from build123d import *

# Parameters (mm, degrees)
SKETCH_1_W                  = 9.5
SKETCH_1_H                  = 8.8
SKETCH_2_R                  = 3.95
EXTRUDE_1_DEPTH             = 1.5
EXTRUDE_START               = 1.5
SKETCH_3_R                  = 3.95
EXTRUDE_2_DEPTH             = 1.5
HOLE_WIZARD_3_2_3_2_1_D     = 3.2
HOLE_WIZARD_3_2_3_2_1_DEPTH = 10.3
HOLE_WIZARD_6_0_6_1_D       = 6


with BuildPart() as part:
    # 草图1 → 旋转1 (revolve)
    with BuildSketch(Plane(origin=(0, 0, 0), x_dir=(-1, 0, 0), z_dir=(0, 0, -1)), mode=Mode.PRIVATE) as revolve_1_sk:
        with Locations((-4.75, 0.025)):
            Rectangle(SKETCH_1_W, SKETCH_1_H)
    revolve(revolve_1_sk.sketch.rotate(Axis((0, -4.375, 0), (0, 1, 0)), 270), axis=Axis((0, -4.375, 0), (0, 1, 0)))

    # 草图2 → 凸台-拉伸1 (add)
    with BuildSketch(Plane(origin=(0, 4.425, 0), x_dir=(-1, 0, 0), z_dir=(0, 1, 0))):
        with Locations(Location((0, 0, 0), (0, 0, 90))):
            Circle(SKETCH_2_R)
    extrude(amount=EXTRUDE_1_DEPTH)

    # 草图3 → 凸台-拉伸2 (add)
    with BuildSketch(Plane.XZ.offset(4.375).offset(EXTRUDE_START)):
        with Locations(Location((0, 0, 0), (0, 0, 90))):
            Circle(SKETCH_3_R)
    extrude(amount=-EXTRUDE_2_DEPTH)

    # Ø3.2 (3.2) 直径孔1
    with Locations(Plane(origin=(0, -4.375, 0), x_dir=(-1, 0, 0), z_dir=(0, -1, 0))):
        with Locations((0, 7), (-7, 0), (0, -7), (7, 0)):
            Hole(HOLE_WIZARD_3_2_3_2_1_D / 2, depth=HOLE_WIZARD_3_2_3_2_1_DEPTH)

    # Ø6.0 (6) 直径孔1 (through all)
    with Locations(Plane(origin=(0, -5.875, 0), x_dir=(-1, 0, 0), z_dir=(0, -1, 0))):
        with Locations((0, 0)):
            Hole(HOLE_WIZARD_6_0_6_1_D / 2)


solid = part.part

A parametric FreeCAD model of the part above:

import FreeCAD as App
import Part
import Sketcher
from FreeCAD import Vector
Q = App.Units.Quantity


def add_polygon(sketch, points):
    """Adds a closed chain of lines whose ends are joined by coincident constraints."""
    first, n = sketch.GeometryCount, len(points)
    for a, b in zip(points, points[1:] + points[:1]):
        sketch.addGeometry(Part.LineSegment(App.Vector(*a, 0), App.Vector(*b, 0)), False)
    for i in range(n):
        sketch.addConstraint(Sketcher.Constraint("Coincident", first + i, 2, first + (i + 1) % n, 1))

doc = App.newDocument("Part")
body = doc.addObject("PartDesign::Body", "Body")

# Sketch on XY plane
sketch1 = doc.addObject("Sketcher::SketchObject", "Sketch")
body.addObject(sketch1)
sketch1.AttachmentSupport = (doc.XY_Plane, [""])
sketch1.MapMode = "FlatFace"
add_polygon(sketch1, [(9.5, 4.425), (9.5, -4.375), (0, -4.375), (0, 4.425)])  # lines 0-3
sketch1.addConstraint(Sketcher.Constraint("Vertical", 0))
sketch1.addConstraint(Sketcher.Constraint("Horizontal", 1))
sketch1.addConstraint(Sketcher.Constraint("Vertical", 2))
sketch1.addConstraint(Sketcher.Constraint("Horizontal", 3))
sketch1.addConstraint(Sketcher.Constraint("PointOnObject", 1, 2, -2))
sketch1.addConstraint(Sketcher.Constraint("DistanceX", 1, 2, 1, 1, Q("9.5 mm")))
sketch1.addConstraint(Sketcher.Constraint("DistanceY", 0, 2, 0, 1, Q("8.8 mm")))
sketch1.addConstraint(Sketcher.Constraint("DistanceY", 0, 2, -1, 1, Q("4.375 mm")))
revolution = doc.addObject("PartDesign::Revolution", "Revolution")
body.addObject(revolution)
revolution.Profile = sketch1
revolution.ReferenceAxis = (sketch1, ["V_Axis"])
revolution.Angle = 360

# Sketch on XZ plane
sketch2 = doc.addObject("Sketcher::SketchObject", "Sketch001")
body.addObject(sketch2)
sketch2.AttachmentSupport = (doc.XZ_Plane, [""])
sketch2.MapMode = "FlatFace"
sketch2.AttachmentOffset = App.Placement(Vector(0, 0, -4.425), App.Rotation())
sketch2.addGeometry(Part.Circle(Vector(0, 0, 0), Vector(0, 0, 1), 3.95), False)
sketch2.addConstraint(Sketcher.Constraint("Coincident", 0, 3, -1, 1))
sketch2.addConstraint(Sketcher.Constraint("Diameter", 0, Q("7.9 mm")))
pad1 = doc.addObject("PartDesign::Pad", "Pad")
body.addObject(pad1)
pad1.Profile = sketch2
pad1.Length = 1.5
pad1.Reversed = True

# Sketch on XZ plane
sketch3 = doc.addObject("Sketcher::SketchObject", "Sketch002")
body.addObject(sketch3)
sketch3.AttachmentSupport = (doc.XZ_Plane, [""])
sketch3.MapMode = "FlatFace"
sketch3.AttachmentOffset = App.Placement(Vector(0, 0, 5.875), App.Rotation())
sketch3.addGeometry(Part.Circle(Vector(0, 0, 0), Vector(0, 0, 1), 3.95), False)
sketch3.addConstraint(Sketcher.Constraint("Coincident", 0, 3, -1, 1))
sketch3.addConstraint(Sketcher.Constraint("Diameter", 0, Q("7.9 mm")))
pad2 = doc.addObject("PartDesign::Pad", "Pad001")
body.addObject(pad2)
pad2.Profile = sketch3
pad2.Length = 1.5
pad2.Reversed = True

# Sketch on XZ plane
sketch4 = doc.addObject("Sketcher::SketchObject", "Sketch003")
body.addObject(sketch4)
sketch4.AttachmentSupport = (doc.XZ_Plane, [""])
sketch4.MapMode = "FlatFace"
sketch4.AttachmentOffset = App.Placement(Vector(0, 0, 4.375), App.Rotation())
sketch4.addGeometry(Part.Circle(Vector(0, -7, 0), Vector(0, 0, 1), 1.6), False)
sketch4.addGeometry(Part.Circle(Vector(7, 0, 0), Vector(0, 0, 1), 1.6), False)
sketch4.addGeometry(Part.Circle(Vector(0, 7, 0), Vector(0, 0, 1), 1.6), False)
sketch4.addGeometry(Part.Circle(Vector(-7, 0, 0), Vector(0, 0, 1), 1.6), False)
sketch4.addConstraint(Sketcher.Constraint("Equal", 0, 1))
sketch4.addConstraint(Sketcher.Constraint("Equal", 1, 2))
sketch4.addConstraint(Sketcher.Constraint("Equal", 2, 3))
sketch4.addConstraint(Sketcher.Constraint("Symmetric", 0, 3, 2, 3, -1, 1))
sketch4.addConstraint(Sketcher.Constraint("Symmetric", 1, 3, 3, 3, -1, 1))
sketch4.addConstraint(Sketcher.Constraint("PointOnObject", 0, 3, -2))
sketch4.addConstraint(Sketcher.Constraint("PointOnObject", 1, 3, -1))
sketch4.addConstraint(Sketcher.Constraint("Diameter", 0, Q("3.2 mm")))
sketch4.addConstraint(Sketcher.Constraint("DistanceY", 0, 3, -1, 1, Q("7 mm")))
sketch4.addConstraint(Sketcher.Constraint("DistanceX", -1, 1, 1, 3, Q("7 mm")))
doc.recompute()
hole = doc.addObject("PartDesign::Hole", "Hole")
body.addObject(hole)
hole.Profile = sketch4
hole.ThreadType = "None"
hole.Diameter = 3.2
hole.DepthType = "Dimension"
hole.Depth = 10.3
hole.DrillPoint = "Flat"

# Sketch on XZ plane
sketch5 = doc.addObject("Sketcher::SketchObject", "Sketch004")
body.addObject(sketch5)
sketch5.AttachmentSupport = (doc.XZ_Plane, [""])
sketch5.MapMode = "FlatFace"
sketch5.AttachmentOffset = App.Placement(Vector(0, 0, 5.875), App.Rotation())
sketch5.addGeometry(Part.Circle(Vector(0, 0, 0), Vector(0, 0, 1), 3), False)
sketch5.addConstraint(Sketcher.Constraint("Coincident", 0, 3, -1, 1))
sketch5.addConstraint(Sketcher.Constraint("Diameter", 0, Q("6 mm")))
doc.recompute()
hole2 = doc.addObject("PartDesign::Hole", "Hole001")
body.addObject(hole2)
hole2.Profile = sketch5
hole2.ThreadType = "None"
hole2.Diameter = 6
hole2.DepthType = "ThroughAll"

doc.recompute()
